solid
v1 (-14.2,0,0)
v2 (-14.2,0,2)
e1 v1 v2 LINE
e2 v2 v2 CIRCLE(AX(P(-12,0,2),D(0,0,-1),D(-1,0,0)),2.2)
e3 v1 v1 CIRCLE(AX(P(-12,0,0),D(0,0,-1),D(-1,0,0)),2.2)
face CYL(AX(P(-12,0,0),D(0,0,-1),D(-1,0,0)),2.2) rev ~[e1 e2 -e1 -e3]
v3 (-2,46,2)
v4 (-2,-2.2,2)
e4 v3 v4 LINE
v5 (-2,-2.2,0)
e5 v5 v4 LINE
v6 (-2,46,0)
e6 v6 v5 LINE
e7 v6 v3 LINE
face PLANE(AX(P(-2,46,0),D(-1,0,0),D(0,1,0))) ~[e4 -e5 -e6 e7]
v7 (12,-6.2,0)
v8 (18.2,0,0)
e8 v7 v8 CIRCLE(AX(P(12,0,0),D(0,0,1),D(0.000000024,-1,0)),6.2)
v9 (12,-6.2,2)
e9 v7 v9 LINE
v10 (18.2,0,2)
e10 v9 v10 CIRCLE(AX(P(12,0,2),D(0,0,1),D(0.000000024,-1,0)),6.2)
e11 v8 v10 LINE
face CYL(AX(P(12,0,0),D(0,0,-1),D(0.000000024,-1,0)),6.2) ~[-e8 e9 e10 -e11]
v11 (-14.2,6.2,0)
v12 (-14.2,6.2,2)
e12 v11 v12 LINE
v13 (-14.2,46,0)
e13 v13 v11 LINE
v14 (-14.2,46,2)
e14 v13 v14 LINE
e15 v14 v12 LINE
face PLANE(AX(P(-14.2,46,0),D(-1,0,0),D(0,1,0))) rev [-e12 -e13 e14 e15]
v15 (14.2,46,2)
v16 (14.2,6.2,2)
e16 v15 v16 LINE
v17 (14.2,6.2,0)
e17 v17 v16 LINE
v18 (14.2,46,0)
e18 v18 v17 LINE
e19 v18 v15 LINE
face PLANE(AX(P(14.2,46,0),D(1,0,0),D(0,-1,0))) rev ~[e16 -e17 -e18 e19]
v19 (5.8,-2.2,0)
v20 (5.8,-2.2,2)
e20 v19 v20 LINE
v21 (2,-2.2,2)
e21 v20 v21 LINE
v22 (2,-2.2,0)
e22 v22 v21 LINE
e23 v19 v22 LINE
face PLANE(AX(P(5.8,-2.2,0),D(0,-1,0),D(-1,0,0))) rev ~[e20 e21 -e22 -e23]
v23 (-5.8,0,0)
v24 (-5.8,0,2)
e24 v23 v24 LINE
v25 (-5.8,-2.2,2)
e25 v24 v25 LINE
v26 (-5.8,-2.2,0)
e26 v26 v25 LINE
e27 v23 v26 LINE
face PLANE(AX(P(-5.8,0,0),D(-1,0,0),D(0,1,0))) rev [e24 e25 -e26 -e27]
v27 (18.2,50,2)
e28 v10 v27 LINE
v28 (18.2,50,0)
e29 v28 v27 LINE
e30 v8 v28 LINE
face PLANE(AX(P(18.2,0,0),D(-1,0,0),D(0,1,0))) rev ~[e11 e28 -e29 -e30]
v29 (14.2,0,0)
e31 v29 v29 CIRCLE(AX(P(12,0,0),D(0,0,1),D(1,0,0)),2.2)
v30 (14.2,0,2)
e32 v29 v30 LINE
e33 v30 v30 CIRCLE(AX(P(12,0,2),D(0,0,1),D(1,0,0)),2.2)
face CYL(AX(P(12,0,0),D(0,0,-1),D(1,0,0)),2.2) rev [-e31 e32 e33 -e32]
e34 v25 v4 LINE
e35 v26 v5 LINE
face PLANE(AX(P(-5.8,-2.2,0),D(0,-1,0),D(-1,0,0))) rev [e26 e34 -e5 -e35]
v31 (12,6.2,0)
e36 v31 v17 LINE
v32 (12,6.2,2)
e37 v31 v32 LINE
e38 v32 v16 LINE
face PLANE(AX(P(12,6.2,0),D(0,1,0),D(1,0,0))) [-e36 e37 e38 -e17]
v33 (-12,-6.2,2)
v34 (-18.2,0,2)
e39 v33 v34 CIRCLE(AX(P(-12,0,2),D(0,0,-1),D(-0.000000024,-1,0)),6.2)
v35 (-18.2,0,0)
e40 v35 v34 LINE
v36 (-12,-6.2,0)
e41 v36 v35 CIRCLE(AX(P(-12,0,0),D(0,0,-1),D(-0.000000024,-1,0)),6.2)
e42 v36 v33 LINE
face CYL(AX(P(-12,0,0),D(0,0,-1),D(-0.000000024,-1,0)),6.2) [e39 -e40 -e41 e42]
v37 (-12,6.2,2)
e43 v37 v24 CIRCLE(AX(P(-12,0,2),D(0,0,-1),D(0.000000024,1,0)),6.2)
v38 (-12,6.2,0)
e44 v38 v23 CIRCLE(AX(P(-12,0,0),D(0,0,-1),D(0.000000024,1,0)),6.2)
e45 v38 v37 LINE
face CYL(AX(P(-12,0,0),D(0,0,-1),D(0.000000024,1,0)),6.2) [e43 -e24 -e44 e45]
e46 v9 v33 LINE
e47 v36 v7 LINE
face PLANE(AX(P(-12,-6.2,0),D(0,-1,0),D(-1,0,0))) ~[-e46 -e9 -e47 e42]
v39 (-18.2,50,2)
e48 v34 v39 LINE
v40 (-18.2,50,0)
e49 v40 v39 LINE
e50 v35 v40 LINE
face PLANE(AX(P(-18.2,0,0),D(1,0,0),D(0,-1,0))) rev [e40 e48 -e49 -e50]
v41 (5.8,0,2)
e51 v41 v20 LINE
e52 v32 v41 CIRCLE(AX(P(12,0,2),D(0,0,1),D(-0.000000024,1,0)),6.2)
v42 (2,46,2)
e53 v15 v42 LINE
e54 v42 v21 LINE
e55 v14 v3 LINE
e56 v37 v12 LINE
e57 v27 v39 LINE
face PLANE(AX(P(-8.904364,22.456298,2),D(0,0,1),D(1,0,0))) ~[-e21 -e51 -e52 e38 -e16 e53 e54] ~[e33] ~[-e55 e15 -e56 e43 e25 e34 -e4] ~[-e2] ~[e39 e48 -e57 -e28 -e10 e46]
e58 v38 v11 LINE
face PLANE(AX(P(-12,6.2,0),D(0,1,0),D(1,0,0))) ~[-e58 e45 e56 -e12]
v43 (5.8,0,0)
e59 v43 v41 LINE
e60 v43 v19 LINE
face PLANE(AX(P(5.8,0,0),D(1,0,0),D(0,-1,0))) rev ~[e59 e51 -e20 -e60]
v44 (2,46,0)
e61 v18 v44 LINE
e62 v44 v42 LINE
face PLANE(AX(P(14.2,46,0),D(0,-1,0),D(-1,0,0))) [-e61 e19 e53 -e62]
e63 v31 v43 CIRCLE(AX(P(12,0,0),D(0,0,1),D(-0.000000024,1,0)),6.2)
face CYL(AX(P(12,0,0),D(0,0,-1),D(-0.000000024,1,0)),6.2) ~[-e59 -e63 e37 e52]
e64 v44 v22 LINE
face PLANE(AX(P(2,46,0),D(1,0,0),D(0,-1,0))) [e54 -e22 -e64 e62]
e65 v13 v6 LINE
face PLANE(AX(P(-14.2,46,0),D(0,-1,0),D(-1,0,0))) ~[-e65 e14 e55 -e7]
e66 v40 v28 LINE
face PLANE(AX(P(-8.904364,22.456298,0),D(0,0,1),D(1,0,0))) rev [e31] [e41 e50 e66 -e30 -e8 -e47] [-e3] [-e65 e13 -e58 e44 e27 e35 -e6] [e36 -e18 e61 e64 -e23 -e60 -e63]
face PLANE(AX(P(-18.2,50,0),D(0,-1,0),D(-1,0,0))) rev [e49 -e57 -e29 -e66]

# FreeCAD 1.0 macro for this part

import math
import FreeCAD as App
import Part
import Sketcher

V = App.Vector

doc = App.newDocument("Part")
body = doc.addObject("PartDesign::Body", "Body")

sketch1 = body.newObject("Sketcher::SketchObject", "Sketch")
sketch1.AttachmentSupport = (doc.getObject("XY_Plane"), [""])
sketch1.MapMode = "FlatFace"
sketch1.addGeometry(Part.ArcOfCircle(Part.Circle(V(12, 0, 0), V(0, 0, 1), 6.2), math.radians(-90), math.radians(0)), False)
sketch1.addGeometry(Part.LineSegment(V(18.2, 0, 0), V(18.2, 50, 0)), False)
sketch1.addGeometry(Part.LineSegment(V(18.2, 50, 0), V(0, 50, 0)), False)
sketch1.addGeometry(Part.LineSegment(V(0, 50, 0), V(0, -6.2, 0)), False)
sketch1.addGeometry(Part.LineSegment(V(0, -6.2, 0), V(12, -6.2, 0)), False)
sketch1.addGeometry(Part.Circle(V(12, 0, 0), V(0, 0, 1), 2.2), False)
sketch1.addGeometry(Part.LineSegment(V(14.2, 6.2, 0), V(12, 6.2, 0)), False)
sketch1.addGeometry(Part.ArcOfCircle(Part.Circle(V(12, 0, 0), V(0, 0, 1), 6.2), math.radians(90), math.radians(180)), False)
sketch1.addGeometry(Part.LineSegment(V(5.8, 0, 0), V(5.8, -2.2, 0)), False)
sketch1.addGeometry(Part.LineSegment(V(5.8, -2.2, 0), V(2, -2.2, 0)), False)
sketch1.addGeometry(Part.LineSegment(V(2, -2.2, 0), V(2, 46, 0)), False)
sketch1.addGeometry(Part.LineSegment(V(2, 46, 0), V(14.2, 46, 0)), False)
sketch1.addGeometry(Part.LineSegment(V(14.2, 46, 0), V(14.2, 6.2, 0)), False)
sketch1.addConstraint(Sketcher.Constraint("Tangent", 0, 2, 1, 1))
sketch1.addConstraint(Sketcher.Constraint("Coincident", 1, 2, 2, 1))
sketch1.addConstraint(Sketcher.Constraint("Coincident", 2, 2, 3, 1))
sketch1.addConstraint(Sketcher.Constraint("Coincident", 3, 2, 4, 1))
sketch1.addConstraint(Sketcher.Constraint("Tangent", 4, 2, 0, 1))
sketch1.addConstraint(Sketcher.Constraint("Tangent", 6, 2, 7, 1))
sketch1.addConstraint(Sketcher.Constraint("Tangent", 7, 2, 8, 1))
sketch1.addConstraint(Sketcher.Constraint("Coincident", 8, 2, 9, 1))
sketch1.addConstraint(Sketcher.Constraint("Coincident", 9, 2, 10, 1))
sketch1.addConstraint(Sketcher.Constraint("Coincident", 10, 2, 11, 1))
sketch1.addConstraint(Sketcher.Constraint("Coincident", 11, 2, 12, 1))
sketch1.addConstraint(Sketcher.Constraint("Coincident", 12, 2, 6, 1))
sketch1.addConstraint(Sketcher.Constraint("Vertical", 1))
sketch1.addConstraint(Sketcher.Constraint("Horizontal", 2))
sketch1.addConstraint(Sketcher.Constraint("Vertical", 3))
sketch1.addConstraint(Sketcher.Constraint("Horizontal", 4))
sketch1.addConstraint(Sketcher.Constraint("Horizontal", 6))
sketch1.addConstraint(Sketcher.Constraint("Vertical", 8))
sketch1.addConstraint(Sketcher.Constraint("Horizontal", 9))
sketch1.addConstraint(Sketcher.Constraint("Vertical", 10))
sketch1.addConstraint(Sketcher.Constraint("Horizontal", 11))
sketch1.addConstraint(Sketcher.Constraint("Vertical", 12))
sketch1.addConstraint(Sketcher.Constraint("Coincident", 5, 3, 0, 3))
sketch1.addConstraint(Sketcher.Constraint("Coincident", 7, 3, 0, 3))
sketch1.addConstraint(Sketcher.Constraint("Equal", 0, 7))
sketch1.addConstraint(Sketcher.Constraint("PointOnObject", 0, 3, -1))
sketch1.addConstraint(Sketcher.Constraint("PointOnObject", 2, 2, -2))
sketch1.addConstraint(Sketcher.Constraint("Equal", 6, 8))
sketch1.addConstraint(Sketcher.Constraint("Diameter", 5, 4.4))
sketch1.addConstraint(Sketcher.Constraint("Radius", 0, 6.2))
sketch1.addConstraint(Sketcher.Constraint("DistanceX", 4, 1, 4, 2, 12.0))
sketch1.addConstraint(Sketcher.Constraint("DistanceY", 1, 1, 1, 2, 50.0))
sketch1.addConstraint(Sketcher.Constraint("DistanceX", 6, 2, 6, 1, 2.2))
sketch1.addConstraint(Sketcher.Constraint("DistanceX", 9, 2, 9, 1, 3.8))
sketch1.addConstraint(Sketcher.Constraint("DistanceY", 10, 1, 10, 2, 48.2))
pad1 = body.newObject("PartDesign::Pad", "Pad")
pad1.Profile = sketch1
pad1.Length = 2
doc.recompute()

mirrored = body.newObject("PartDesign::Mirrored", "Mirrored")
mirrored.Originals = [pad1]
mirrored.MirrorPlane = (doc.getObject("YZ_Plane"), [""])
body.Tip = mirrored

doc.recompute()
